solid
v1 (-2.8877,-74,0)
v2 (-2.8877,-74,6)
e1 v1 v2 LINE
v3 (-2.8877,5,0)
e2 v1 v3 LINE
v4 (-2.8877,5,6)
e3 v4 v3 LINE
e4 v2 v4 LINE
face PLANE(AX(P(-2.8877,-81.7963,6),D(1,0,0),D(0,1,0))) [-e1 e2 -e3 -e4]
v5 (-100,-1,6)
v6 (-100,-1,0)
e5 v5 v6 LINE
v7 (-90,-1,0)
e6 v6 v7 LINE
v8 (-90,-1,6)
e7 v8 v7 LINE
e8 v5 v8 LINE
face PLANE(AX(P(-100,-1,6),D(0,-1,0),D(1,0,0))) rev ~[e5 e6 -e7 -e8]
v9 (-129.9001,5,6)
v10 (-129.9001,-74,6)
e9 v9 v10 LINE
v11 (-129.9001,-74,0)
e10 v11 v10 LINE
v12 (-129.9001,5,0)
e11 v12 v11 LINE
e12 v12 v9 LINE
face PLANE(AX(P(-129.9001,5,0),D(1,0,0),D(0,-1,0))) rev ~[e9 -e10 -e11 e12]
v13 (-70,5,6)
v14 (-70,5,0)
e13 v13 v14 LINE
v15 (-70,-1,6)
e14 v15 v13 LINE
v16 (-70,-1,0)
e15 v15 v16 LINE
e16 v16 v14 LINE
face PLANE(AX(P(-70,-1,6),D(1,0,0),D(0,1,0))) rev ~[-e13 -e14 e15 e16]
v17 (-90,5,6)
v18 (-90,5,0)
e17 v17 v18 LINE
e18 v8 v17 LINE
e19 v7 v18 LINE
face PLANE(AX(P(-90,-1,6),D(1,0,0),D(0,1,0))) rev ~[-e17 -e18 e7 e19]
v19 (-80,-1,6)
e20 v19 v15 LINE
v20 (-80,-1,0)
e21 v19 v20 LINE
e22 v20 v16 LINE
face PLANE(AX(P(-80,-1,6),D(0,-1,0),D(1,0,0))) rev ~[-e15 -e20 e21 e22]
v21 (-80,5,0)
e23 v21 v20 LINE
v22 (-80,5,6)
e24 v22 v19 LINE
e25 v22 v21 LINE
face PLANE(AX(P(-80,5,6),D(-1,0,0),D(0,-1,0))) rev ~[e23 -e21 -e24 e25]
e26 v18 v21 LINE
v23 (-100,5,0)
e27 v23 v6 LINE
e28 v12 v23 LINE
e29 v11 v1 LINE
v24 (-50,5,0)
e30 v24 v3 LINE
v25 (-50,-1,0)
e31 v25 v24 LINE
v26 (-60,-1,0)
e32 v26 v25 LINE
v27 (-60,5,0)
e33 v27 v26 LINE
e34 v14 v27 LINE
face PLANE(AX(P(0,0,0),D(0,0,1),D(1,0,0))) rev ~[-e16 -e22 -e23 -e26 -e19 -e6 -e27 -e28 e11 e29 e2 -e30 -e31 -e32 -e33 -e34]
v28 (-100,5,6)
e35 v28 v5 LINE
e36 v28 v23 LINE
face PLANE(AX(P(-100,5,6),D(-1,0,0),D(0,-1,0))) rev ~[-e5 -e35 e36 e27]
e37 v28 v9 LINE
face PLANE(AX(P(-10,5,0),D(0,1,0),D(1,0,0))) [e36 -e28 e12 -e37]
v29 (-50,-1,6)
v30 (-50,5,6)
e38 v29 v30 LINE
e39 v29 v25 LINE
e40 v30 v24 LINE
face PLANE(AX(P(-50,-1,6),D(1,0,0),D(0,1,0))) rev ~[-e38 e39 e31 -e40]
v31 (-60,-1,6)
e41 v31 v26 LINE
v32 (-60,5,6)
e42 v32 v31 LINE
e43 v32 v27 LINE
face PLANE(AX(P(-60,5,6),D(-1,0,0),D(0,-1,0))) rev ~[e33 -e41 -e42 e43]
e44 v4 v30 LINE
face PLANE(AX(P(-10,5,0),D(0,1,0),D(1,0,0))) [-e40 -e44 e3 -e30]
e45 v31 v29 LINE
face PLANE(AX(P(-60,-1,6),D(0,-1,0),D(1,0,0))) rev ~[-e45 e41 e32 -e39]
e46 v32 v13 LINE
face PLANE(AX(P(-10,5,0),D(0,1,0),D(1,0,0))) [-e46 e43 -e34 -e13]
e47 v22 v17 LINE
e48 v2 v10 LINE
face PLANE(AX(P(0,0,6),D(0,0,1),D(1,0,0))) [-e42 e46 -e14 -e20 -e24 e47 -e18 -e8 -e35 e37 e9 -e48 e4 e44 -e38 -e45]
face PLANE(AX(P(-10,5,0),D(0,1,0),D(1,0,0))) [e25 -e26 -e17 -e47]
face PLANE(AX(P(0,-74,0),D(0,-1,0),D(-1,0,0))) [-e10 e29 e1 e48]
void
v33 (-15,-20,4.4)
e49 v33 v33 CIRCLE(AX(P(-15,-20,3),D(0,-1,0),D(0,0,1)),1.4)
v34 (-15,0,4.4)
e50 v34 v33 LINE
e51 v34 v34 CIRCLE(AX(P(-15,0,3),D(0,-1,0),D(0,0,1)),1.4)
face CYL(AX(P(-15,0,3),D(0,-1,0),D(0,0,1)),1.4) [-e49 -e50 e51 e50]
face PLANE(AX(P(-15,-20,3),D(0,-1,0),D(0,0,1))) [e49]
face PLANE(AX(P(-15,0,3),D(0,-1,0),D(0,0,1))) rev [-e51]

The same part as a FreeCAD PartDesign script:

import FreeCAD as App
import Part
import Sketcher
from FreeCAD import Vector
Q = App.Units.Quantity


def add_polygon(sketch, points):
    """Adds a closed chain of lines whose ends are joined by coincident constraints."""
    first, n = sketch.GeometryCount, len(points)
    for a, b in zip(points, points[1:] + points[:1]):
        sketch.addGeometry(Part.LineSegment(App.Vector(*a, 0), App.Vector(*b, 0)), False)
    for i in range(n):
        sketch.addConstraint(Sketcher.Constraint("Coincident", first + i, 2, first + (i + 1) % n, 1))

doc = App.newDocument("Part")
body = doc.addObject("PartDesign::Body", "Body")

sketch1 = body.newObject("Sketcher::SketchObject", "Sketch")
sketch1.AttachmentSupport = (doc.getObject("XY_Plane"), [""])
sketch1.MapMode = "FlatFace"
add_polygon(sketch1, [(-130, -74), (0, -74), (0, 5), (-130, 5)])
sketch1.addConstraint(Sketcher.Constraint("Horizontal", 0))
sketch1.addConstraint(Sketcher.Constraint("Vertical", 1))
sketch1.addConstraint(Sketcher.Constraint("Horizontal", 2))
sketch1.addConstraint(Sketcher.Constraint("Vertical", 3))
sketch1.addConstraint(Sketcher.Constraint("PointOnObject", 0, 2, -2))
sketch1.addConstraint(Sketcher.Constraint("DistanceY", 1, 1, 1, 2, Q("79 mm")))
sketch1.addConstraint(Sketcher.Constraint("DistanceX", 0, 1, 0, 2, Q("129.9 mm")))
sketch1.addConstraint(Sketcher.Constraint("DistanceY", 0, 2, -1, 1, Q("74 mm")))
pad1 = body.newObject("PartDesign::Pad", "Pad")
pad1.Profile = sketch1
pad1.Length = 6

sketch2 = body.newObject("Sketcher::SketchObject", "Sketch001")
sketch2.AttachmentSupport = (doc.getObject("XZ_Plane"), [""])
sketch2.MapMode = "FlatFace"
sketch2.addGeometry(Part.Circle(Vector(-15, 3, 0), Vector(0, 0, 1), 1.4), False)
sketch2.addConstraint(Sketcher.Constraint("Diameter", 0, Q("2.8 mm")))
sketch2.addConstraint(Sketcher.Constraint("DistanceX", 0, 3, -1, 1, Q("15 mm")))
sketch2.addConstraint(Sketcher.Constraint("DistanceY", -1, 1, 0, 3, Q("3 mm")))
doc.recompute()
hole = body.newObject("PartDesign::Hole", "Hole")
hole.Profile = sketch2
hole.ThreadType = "None"
hole.Diameter = 2.8
hole.DepthType = "Dimension"
hole.Depth = 20
hole.DrillPoint = "Flat"
hole.Reversed = True

sketch3 = body.newObject("Sketcher::SketchObject", "Sketch002")
sketch3.AttachmentSupport = (doc.getObject("XY_Plane"), [""])
sketch3.MapMode = "FlatFace"
sketch3.AttachmentOffset = App.Placement(Vector(0, 0, 6), App.Rotation())
add_polygon(sketch3, [(-3, -82), (16, -82), (16, 13), (-3, 13)])
sketch3.addConstraint(Sketcher.Constraint("Horizontal", 0))
sketch3.addConstraint(Sketcher.Constraint("Vertical", 1))
sketch3.addConstraint(Sketcher.Constraint("Horizontal", 2))
sketch3.addConstraint(Sketcher.Constraint("Vertical", 3))
sketch3.addConstraint(Sketcher.Constraint("DistanceX", 0, 1, 0, 2, Q("19.3772 mm")))
sketch3.addConstraint(Sketcher.Constraint("DistanceY", 1, 1, 1, 2, Q("95.1458 mm")))
sketch3.addConstraint(Sketcher.Constraint("DistanceX", -1, 1, 0, 2, Q("16.4895 mm")))
sketch3.addConstraint(Sketcher.Constraint("DistanceY", 0, 2, -1, 1, Q("81.7963 mm")))
pocket1 = body.newObject("PartDesign::Pocket", "Pocket")
pocket1.Profile = sketch3
pocket1.Length = 10

sketch4 = body.newObject("Sketcher::SketchObject", "Sketch003")
sketch4.AttachmentSupport = (doc.getObject("XY_Plane"), [""])
sketch4.MapMode = "FlatFace"
sketch4.AttachmentOffset = App.Placement(Vector(0, 0, 6), App.Rotation())
add_polygon(sketch4, [(-90, 5), (-100, 5), (-100, -1), (-90, -1)])
sketch4.addConstraint(Sketcher.Constraint("Horizontal", 0))
sketch4.addConstraint(Sketcher.Constraint("Vertical", 1))
sketch4.addConstraint(Sketcher.Constraint("Horizontal", 2))
sketch4.addConstraint(Sketcher.Constraint("Vertical", 3))
sketch4.addConstraint(Sketcher.Constraint("DistanceX", 0, 2, 0, 1, Q("10 mm")))
sketch4.addConstraint(Sketcher.Constraint("DistanceY", 1, 2, 1, 1, Q("6 mm")))
sketch4.addConstraint(Sketcher.Constraint("DistanceX", 0, 2, -1, 1, Q("100 mm")))
sketch4.addConstraint(Sketcher.Constraint("DistanceY", -1, 1, 0, 2, Q("5 mm")))
pocket2 = body.newObject("PartDesign::Pocket", "Pocket001")
pocket2.Profile = sketch4
pocket2.Type = "ThroughAll"
doc.recompute()

linearpattern = body.newObject("PartDesign::LinearPattern", "LinearPattern")
linearpattern.Originals = [pocket2]
linearpattern.Direction = (doc.getObject("X_Axis"), [""])
linearpattern.Mode = "offset"
linearpattern.Offset = 20
linearpattern.Occurrences = 3
body.Tip = linearpattern

doc.recompute()
